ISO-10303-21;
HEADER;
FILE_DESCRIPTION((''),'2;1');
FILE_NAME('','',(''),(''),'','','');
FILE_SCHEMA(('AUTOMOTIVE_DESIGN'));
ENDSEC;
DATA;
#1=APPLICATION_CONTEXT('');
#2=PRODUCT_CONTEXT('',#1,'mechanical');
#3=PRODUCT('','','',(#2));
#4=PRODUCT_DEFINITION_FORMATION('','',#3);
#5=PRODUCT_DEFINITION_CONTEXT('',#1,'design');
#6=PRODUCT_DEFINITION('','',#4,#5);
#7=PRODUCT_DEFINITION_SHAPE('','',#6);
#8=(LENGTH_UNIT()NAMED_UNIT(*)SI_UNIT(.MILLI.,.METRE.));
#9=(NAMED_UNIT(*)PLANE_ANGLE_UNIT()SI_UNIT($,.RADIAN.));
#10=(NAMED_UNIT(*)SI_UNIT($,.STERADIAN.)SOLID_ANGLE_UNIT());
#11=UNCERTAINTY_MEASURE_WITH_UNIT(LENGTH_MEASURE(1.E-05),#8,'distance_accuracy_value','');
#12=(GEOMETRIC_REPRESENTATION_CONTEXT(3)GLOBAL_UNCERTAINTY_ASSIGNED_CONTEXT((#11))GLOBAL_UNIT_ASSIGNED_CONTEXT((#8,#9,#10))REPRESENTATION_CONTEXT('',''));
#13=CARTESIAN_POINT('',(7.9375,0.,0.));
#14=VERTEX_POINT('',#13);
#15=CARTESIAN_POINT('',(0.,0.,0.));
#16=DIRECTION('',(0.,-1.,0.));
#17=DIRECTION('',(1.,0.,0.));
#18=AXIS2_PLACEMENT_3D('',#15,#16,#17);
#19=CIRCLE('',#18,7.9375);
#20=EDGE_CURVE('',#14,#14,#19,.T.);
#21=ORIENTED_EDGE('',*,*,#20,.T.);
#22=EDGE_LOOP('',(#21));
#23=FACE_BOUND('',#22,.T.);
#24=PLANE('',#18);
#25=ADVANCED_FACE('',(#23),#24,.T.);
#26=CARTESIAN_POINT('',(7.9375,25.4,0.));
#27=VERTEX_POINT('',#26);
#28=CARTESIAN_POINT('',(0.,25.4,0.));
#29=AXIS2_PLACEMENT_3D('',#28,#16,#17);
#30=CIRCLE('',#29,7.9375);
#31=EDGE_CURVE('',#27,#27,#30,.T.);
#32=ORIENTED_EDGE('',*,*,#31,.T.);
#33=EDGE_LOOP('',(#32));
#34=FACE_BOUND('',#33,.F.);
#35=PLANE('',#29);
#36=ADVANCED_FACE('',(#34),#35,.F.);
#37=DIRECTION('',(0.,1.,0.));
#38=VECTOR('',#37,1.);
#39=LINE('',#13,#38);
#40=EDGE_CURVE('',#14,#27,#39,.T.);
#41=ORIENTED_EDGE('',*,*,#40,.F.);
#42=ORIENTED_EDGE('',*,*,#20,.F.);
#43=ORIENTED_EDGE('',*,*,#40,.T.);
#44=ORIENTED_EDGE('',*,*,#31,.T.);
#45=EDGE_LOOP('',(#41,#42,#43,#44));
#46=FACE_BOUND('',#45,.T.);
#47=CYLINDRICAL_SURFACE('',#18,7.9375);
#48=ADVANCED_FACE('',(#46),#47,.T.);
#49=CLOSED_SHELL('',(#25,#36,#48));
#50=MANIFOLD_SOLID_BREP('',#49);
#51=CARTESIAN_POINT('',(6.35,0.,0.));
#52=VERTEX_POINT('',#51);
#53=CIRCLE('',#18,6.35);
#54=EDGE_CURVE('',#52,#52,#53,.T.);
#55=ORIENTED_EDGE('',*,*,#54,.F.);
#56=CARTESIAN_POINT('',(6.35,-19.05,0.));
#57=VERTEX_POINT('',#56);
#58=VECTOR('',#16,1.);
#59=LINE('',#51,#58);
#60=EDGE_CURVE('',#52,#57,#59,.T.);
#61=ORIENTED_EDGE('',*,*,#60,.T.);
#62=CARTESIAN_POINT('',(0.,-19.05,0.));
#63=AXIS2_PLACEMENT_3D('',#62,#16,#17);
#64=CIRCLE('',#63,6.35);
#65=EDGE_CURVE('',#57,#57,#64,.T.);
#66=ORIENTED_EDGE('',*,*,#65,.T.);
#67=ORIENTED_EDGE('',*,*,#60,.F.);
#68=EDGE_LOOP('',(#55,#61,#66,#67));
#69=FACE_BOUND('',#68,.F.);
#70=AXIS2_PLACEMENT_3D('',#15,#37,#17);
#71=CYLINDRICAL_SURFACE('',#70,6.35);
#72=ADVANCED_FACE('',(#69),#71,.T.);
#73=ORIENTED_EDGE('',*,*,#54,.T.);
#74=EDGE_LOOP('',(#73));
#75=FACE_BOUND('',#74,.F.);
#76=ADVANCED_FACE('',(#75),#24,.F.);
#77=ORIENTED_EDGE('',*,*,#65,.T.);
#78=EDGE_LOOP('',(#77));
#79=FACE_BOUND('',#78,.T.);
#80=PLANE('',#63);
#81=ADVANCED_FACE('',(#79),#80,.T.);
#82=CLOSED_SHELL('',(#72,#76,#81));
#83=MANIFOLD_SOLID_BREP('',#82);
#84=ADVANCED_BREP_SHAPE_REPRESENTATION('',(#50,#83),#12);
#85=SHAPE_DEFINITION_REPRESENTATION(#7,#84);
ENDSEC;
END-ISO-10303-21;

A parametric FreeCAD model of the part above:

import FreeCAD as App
import Part
import Sketcher
from FreeCAD import Vector
Q = App.Units.Quantity

doc = App.newDocument("Part")
body = doc.addObject("PartDesign::Body", "Body")

sketch1 = body.newObject("Sketcher::SketchObject", "Sketch")
sketch1.AttachmentSupport = (doc.getObject("XZ_Plane"), [""])
sketch1.MapMode = "FlatFace"
sketch1.addGeometry(Part.Circle(Vector(0, 0, 0), Vector(0, 0, 1), 8), False)
sketch1.addConstraint([
    Sketcher.Constraint("Coincident", 0, 3, -1, 1),
    Sketcher.Constraint("Diameter", 0, Q("0.625 in")),
])
pad1 = body.newObject("PartDesign::Pad", "Pad")
pad1.Profile = sketch1
pad1.Length = Q("1 in")
pad1.Reversed = True
body2 = doc.addObject("PartDesign::Body", "Body001")

sketch2 = body2.newObject("Sketcher::SketchObject", "Sketch001")
sketch2.AttachmentSupport = (doc.getObject("XZ_Plane001"), [""])
sketch2.MapMode = "FlatFace"
sketch2.addGeometry(Part.Circle(Vector(0, 0, 0), Vector(0, 0, 1), 6), False)
sketch2.addConstraint([
    Sketcher.Constraint("Coincident", 0, 3, -1, 1),
    Sketcher.Constraint("Diameter", 0, Q("0.5 in")),
])
pad2 = body2.newObject("PartDesign::Pad", "Pad001")
pad2.Profile = sketch2
pad2.Length = Q("0.75 in")

doc.recompute()
